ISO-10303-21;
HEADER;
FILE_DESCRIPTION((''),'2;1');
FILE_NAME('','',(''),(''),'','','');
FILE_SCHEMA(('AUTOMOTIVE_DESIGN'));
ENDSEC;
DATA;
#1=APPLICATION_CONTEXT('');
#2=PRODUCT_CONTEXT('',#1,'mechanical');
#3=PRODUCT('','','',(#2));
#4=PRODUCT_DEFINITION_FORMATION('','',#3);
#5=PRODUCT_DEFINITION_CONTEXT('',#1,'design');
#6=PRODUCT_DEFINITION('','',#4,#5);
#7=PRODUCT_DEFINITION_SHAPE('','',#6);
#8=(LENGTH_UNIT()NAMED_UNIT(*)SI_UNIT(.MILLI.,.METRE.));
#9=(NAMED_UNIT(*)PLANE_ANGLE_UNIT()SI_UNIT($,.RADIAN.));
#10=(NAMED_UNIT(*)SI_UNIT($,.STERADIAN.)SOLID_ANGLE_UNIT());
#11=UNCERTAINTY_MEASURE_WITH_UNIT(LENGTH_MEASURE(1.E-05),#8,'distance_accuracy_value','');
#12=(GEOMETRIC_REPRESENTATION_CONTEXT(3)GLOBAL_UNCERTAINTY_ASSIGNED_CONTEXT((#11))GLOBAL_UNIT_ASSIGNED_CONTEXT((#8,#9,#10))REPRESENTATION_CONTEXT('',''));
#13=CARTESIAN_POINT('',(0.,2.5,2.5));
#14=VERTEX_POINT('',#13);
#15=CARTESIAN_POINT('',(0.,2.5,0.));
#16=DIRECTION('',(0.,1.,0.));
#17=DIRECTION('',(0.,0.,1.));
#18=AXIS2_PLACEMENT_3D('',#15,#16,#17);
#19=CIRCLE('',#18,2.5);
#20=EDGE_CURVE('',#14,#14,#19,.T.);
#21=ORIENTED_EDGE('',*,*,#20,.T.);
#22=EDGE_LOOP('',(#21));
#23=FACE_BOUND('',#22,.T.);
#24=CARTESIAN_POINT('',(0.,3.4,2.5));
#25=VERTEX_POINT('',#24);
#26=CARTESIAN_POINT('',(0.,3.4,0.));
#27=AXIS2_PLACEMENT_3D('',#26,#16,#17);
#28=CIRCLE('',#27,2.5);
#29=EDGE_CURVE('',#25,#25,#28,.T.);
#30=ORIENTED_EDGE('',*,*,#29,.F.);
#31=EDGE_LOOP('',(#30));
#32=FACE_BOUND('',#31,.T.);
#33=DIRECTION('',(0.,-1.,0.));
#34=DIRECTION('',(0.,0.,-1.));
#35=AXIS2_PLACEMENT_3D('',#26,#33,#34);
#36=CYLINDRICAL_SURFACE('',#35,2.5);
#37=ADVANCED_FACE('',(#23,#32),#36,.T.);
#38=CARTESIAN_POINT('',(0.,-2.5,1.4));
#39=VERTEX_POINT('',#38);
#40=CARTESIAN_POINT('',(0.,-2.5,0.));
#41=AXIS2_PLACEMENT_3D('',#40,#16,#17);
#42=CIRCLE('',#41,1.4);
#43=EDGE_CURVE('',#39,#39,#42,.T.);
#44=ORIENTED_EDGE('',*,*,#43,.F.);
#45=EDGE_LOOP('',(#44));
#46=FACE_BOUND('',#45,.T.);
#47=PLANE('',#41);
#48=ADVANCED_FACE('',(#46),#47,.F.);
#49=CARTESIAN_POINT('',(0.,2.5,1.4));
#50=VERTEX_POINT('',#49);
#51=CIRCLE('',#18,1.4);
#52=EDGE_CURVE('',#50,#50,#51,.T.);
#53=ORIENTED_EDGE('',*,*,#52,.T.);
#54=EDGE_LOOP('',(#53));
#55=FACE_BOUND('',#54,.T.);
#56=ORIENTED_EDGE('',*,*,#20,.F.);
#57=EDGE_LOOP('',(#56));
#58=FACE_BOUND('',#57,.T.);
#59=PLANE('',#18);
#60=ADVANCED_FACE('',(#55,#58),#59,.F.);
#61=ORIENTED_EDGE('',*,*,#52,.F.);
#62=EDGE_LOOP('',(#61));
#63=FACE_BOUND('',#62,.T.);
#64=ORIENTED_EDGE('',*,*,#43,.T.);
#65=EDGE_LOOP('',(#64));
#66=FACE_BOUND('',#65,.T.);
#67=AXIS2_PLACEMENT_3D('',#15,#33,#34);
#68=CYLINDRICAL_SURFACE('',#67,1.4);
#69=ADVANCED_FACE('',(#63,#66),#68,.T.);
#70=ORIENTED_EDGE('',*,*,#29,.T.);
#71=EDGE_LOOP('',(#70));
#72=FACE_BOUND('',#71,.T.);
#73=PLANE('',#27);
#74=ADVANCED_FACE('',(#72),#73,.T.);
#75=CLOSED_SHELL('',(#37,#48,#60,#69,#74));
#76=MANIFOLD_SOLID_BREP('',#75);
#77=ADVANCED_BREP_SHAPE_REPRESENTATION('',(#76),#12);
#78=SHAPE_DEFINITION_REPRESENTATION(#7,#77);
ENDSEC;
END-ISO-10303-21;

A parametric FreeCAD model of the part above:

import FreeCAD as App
import Part
import Sketcher

V = App.Vector

doc = App.newDocument("Part")
body = doc.addObject("PartDesign::Body", "Body")

# Sketch on XZ plane
sketch1 = body.newObject("Sketcher::SketchObject", "Sketch")
sketch1.AttachmentSupport = (doc.getObject("XZ_Plane"), [""])
sketch1.MapMode = "FlatFace"
sketch1.addGeometry(Part.Circle(V(0, 0, 0), V(0, 0, 1), 1.4), False)
sketch1.addConstraint(Sketcher.Constraint("Coincident", 0, 3, -1, 1))
sketch1.addConstraint(Sketcher.Constraint("Diameter", 0, 2.8))
pad1 = body.newObject("PartDesign::Pad", "Pad")
pad1.Profile = sketch1
pad1.Length = 5
pad1.Midplane = True

# Sketch on XZ plane
sketch2 = body.newObject("Sketcher::SketchObject", "Sketch001")
sketch2.AttachmentSupport = (doc.getObject("XZ_Plane"), [""])
sketch2.MapMode = "FlatFace"
sketch2.AttachmentOffset = App.Placement(V(0, 0, -2.5), App.Rotation())
sketch2.addGeometry(Part.Circle(V(0, 0, 0), V(0, 0, 1), 2.5), False)
sketch2.addConstraint(Sketcher.Constraint("Coincident", 0, 3, -1, 1))
sketch2.addConstraint(Sketcher.Constraint("Diameter", 0, 5.0))
pad2 = body.newObject("PartDesign::Pad", "Pad001")
pad2.Profile = sketch2
pad2.Length = 0.9
pad2.Reversed = True

doc.recompute()
